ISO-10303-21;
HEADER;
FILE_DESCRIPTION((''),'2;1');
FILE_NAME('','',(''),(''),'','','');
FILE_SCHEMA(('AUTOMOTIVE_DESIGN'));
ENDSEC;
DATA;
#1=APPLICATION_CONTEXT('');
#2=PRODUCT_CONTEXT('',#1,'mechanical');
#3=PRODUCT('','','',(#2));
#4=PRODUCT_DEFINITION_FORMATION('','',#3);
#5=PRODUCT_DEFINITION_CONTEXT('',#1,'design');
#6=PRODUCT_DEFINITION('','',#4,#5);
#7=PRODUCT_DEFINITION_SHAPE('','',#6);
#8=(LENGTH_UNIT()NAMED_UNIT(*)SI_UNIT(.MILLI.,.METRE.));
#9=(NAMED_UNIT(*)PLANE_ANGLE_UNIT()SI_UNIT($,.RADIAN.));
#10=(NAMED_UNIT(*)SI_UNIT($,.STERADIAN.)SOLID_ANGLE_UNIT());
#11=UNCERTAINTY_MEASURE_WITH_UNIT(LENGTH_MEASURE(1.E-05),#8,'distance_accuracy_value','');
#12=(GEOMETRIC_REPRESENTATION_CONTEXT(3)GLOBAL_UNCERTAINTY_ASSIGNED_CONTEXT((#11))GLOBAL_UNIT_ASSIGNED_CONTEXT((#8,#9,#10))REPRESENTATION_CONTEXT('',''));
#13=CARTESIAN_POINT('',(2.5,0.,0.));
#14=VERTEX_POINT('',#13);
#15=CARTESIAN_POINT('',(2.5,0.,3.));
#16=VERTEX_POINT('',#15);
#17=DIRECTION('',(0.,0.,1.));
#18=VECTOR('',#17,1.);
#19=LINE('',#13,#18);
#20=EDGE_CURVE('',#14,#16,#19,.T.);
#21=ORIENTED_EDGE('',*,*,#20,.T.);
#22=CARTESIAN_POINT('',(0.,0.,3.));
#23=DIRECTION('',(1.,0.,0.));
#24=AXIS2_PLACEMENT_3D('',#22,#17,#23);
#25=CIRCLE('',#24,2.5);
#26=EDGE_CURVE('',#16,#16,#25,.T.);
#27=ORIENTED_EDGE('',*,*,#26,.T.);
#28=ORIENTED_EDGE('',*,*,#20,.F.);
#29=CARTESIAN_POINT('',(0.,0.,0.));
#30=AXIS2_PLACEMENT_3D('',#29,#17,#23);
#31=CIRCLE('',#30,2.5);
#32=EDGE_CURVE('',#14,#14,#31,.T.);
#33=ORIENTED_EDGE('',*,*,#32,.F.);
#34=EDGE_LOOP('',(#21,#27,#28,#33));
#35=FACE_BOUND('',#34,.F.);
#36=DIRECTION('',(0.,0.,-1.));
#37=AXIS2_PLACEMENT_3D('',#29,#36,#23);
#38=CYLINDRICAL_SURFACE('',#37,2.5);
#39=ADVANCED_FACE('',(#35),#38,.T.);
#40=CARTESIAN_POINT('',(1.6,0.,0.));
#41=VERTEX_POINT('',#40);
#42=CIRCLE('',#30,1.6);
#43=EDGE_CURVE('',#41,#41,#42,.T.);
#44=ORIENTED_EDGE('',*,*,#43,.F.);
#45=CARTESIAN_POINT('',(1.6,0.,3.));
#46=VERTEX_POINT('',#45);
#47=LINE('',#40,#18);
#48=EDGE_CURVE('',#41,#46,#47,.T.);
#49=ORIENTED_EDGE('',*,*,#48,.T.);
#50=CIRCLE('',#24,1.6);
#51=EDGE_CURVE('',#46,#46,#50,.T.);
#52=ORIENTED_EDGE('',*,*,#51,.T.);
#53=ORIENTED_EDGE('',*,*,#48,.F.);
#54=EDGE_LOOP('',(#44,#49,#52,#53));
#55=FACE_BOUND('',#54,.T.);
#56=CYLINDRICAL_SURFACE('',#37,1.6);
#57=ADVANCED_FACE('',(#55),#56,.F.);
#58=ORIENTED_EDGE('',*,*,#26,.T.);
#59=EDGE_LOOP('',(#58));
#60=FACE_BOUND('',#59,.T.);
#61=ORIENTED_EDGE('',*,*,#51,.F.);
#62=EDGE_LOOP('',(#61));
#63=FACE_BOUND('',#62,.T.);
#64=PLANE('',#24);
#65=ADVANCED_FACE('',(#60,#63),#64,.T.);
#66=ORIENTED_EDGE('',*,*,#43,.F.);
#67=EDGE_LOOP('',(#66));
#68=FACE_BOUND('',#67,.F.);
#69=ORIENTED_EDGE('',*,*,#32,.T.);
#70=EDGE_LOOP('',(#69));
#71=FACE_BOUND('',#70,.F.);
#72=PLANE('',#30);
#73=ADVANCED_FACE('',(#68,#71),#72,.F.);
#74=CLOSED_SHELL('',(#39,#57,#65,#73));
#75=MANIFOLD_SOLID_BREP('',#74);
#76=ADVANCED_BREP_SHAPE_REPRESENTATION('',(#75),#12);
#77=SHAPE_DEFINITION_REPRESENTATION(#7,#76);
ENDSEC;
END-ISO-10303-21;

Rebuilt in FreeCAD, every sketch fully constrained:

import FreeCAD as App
import Part
import Sketcher
from FreeCAD import Vector
Q = App.Units.Quantity

doc = App.newDocument("Part")
body = doc.addObject("PartDesign::Body", "Body")

# Sketch on XY plane
sketch1 = body.newObject("Sketcher::SketchObject", "Sketch")
sketch1.AttachmentSupport = (doc.getObject("XY_Plane"), [""])
sketch1.MapMode = "FlatFace"
sketch1.addGeometry(Part.Circle(Vector(0, 0, 0), Vector(0, 0, 1), 2.5), False)
sketch1.addGeometry(Part.Circle(Vector(0, 0, 0), Vector(0, 0, 1), 1.6), False)
sketch1.addConstraint(Sketcher.Constraint("Coincident", 0, 3, -1, 1))
sketch1.addConstraint(Sketcher.Constraint("Coincident", 1, 3, -1, 1))
sketch1.addConstraint(Sketcher.Constraint("Diameter", 0, Q("5 mm")))
sketch1.addConstraint(Sketcher.Constraint("Diameter", 1, Q("3.2 mm")))
pad1 = body.newObject("PartDesign::Pad", "Pad")
pad1.Profile = sketch1
pad1.Length = 3

doc.recompute()
